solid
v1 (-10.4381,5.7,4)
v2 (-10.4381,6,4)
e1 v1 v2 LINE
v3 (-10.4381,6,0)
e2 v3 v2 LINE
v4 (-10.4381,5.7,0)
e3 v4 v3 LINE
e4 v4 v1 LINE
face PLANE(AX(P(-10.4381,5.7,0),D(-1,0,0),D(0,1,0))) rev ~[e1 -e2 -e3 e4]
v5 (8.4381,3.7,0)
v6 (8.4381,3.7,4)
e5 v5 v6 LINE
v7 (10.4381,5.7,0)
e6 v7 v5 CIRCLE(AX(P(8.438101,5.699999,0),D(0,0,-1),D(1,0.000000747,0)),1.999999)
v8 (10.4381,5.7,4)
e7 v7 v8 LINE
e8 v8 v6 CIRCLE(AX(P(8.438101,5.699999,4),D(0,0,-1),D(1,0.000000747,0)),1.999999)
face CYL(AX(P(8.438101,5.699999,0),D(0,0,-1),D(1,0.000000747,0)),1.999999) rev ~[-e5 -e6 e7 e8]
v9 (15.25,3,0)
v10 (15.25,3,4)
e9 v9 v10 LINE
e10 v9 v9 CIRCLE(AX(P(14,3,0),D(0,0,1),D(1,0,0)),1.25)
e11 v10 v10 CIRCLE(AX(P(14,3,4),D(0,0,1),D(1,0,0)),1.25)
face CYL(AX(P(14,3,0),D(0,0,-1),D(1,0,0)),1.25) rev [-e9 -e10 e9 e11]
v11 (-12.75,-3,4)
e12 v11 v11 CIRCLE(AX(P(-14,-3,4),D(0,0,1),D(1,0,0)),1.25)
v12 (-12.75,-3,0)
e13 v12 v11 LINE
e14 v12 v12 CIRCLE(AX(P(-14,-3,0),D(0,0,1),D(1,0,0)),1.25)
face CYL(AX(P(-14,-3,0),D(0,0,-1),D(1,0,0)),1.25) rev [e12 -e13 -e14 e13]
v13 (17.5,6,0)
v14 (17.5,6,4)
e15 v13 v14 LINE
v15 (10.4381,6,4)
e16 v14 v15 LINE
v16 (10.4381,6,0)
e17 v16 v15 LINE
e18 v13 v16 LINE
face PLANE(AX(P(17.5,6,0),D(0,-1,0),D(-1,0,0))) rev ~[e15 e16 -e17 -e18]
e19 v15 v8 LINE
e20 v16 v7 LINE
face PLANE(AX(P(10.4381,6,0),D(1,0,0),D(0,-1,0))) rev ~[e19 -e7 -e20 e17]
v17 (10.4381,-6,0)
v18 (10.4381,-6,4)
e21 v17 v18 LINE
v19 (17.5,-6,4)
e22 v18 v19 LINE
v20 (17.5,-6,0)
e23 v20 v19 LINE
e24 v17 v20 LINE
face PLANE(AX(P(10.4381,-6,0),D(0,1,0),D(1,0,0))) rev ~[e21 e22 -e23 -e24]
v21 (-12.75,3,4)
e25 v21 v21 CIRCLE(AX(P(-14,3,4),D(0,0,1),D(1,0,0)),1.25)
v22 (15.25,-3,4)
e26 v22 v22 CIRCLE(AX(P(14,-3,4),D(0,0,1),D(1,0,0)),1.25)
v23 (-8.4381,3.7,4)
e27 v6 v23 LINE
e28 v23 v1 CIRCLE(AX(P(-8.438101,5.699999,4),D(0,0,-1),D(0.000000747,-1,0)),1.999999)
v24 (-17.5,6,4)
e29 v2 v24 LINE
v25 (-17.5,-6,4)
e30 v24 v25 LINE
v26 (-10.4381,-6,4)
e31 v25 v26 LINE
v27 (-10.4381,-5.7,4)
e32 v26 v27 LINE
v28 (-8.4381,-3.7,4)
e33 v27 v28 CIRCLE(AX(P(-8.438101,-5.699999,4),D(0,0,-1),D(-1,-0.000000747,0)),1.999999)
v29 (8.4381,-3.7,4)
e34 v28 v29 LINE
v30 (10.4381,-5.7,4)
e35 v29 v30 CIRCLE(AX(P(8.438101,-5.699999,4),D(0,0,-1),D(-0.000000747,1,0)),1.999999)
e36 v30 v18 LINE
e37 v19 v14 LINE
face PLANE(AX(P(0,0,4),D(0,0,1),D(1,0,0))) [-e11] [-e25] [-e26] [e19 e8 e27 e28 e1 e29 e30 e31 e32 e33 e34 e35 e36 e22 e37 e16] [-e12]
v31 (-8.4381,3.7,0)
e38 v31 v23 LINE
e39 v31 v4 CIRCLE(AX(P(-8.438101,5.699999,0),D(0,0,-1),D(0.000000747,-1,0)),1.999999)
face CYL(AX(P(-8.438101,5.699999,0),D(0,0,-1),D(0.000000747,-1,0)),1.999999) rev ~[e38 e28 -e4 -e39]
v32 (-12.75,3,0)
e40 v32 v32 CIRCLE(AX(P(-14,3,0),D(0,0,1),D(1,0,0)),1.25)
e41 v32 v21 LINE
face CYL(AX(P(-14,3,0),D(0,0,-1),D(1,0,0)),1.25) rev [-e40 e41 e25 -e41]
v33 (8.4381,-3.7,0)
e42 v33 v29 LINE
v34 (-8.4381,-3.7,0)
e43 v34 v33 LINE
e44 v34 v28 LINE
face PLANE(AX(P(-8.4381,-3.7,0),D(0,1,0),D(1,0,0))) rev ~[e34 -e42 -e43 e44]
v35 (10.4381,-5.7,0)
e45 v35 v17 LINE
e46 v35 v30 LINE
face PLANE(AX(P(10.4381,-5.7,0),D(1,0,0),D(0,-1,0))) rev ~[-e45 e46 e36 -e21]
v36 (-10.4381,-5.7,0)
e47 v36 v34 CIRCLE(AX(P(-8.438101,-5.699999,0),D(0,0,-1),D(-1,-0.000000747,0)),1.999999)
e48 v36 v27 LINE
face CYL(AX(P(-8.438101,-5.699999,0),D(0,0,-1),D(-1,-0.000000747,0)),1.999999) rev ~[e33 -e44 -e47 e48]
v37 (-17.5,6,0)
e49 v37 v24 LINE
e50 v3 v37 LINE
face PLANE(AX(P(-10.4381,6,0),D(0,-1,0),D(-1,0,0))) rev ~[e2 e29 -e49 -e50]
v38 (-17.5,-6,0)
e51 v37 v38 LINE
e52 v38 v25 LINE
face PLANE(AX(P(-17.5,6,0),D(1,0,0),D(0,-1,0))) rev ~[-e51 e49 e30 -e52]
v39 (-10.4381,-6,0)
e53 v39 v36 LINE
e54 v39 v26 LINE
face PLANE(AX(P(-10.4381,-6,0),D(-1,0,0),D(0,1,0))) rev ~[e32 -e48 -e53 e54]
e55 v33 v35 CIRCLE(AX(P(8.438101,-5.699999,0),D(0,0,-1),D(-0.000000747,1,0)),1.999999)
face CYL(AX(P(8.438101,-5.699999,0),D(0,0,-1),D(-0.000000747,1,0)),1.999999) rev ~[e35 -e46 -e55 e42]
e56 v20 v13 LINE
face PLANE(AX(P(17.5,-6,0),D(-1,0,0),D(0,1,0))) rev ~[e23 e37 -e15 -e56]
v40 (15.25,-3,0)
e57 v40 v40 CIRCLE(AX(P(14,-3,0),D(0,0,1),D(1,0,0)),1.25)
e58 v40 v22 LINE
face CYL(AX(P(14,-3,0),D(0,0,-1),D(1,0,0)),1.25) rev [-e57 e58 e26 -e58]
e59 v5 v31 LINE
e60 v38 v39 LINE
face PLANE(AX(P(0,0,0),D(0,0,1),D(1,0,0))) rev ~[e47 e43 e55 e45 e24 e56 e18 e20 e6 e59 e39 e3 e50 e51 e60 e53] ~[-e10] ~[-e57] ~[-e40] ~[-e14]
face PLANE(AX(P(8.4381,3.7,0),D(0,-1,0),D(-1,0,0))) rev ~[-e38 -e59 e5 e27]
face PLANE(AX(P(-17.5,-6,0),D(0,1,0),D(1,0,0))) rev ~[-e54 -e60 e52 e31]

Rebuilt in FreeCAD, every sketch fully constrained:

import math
import FreeCAD as App
import Part
import Sketcher

V = App.Vector

doc = App.newDocument("Part")
body = doc.addObject("PartDesign::Body", "Body")

# Sketch on XY plane
sketch1 = body.newObject("Sketcher::SketchObject", "Sketch")
sketch1.AttachmentSupport = (doc.getObject("XY_Plane"), [""])
sketch1.MapMode = "FlatFace"
sketch1.addGeometry([
    Part.LineSegment(V(-17.5, -6, 0), V(-10.44, -6, 0)),  # 0
    Part.LineSegment(V(-10.44, -6, 0), V(-10.44, -5.7, 0)),  # 1
    Part.ArcOfCircle(Part.Circle(V(-8.44, -5.7, 0), V(0, 0, 1), 2), math.radians(90), math.radians(180)),  # 2
    Part.LineSegment(V(-8.44, -3.7, 0), V(8.44, -3.7, 0)),  # 3
    Part.ArcOfCircle(Part.Circle(V(8.44, -5.7, 0), V(0, 0, 1), 2), math.radians(0), math.radians(90)),  # 4
    Part.LineSegment(V(10.44, -5.7, 0), V(10.44, -6, 0)),  # 5
    Part.LineSegment(V(10.44, -6, 0), V(17.5, -6, 0)),  # 6
    Part.LineSegment(V(17.5, -6, 0), V(17.5, 6, 0)),  # 7
    Part.LineSegment(V(17.5, 6, 0), V(10.44, 6, 0)),  # 8
    Part.LineSegment(V(10.44, 6, 0), V(10.44, 5.7, 0)),  # 9
    Part.ArcOfCircle(Part.Circle(V(8.44, 5.7, 0), V(0, 0, 1), 2), math.radians(-90), math.radians(0)),  # 10
    Part.LineSegment(V(8.44, 3.7, 0), V(-8.44, 3.7, 0)),  # 11
    Part.ArcOfCircle(Part.Circle(V(-8.44, 5.7, 0), V(0, 0, 1), 2), math.radians(180), math.radians(270)),  # 12
    Part.LineSegment(V(-10.44, 5.7, 0), V(-10.44, 6, 0)),  # 13
    Part.LineSegment(V(-10.44, 6, 0), V(-17.5, 6, 0)),  # 14
    Part.LineSegment(V(-17.5, 6, 0), V(-17.5, -6, 0)),  # 15
    Part.Circle(V(-14, -3, 0), V(0, 0, 1), 1.25),  # 16
    Part.Circle(V(14, -3, 0), V(0, 0, 1), 1.25),  # 17
    Part.Circle(V(-14, 3, 0), V(0, 0, 1), 1.25),  # 18
    Part.Circle(V(14, 3, 0), V(0, 0, 1), 1.25),  # 19
], False)
sketch1.addConstraint([
    Sketcher.Constraint("Coincident", 0, 2, 1, 1),
    Sketcher.Constraint("Tangent", 1, 2, 2, 2),
    Sketcher.Constraint("Tangent", 2, 1, 3, 1),
    Sketcher.Constraint("Tangent", 3, 2, 4, 2),
    Sketcher.Constraint("Tangent", 4, 1, 5, 1),
    Sketcher.Constraint("Coincident", 5, 2, 6, 1),
    Sketcher.Constraint("Coincident", 6, 2, 7, 1),
    Sketcher.Constraint("Coincident", 7, 2, 8, 1),
    Sketcher.Constraint("Coincident", 8, 2, 9, 1),
    Sketcher.Constraint("Tangent", 9, 2, 10, 2),
    Sketcher.Constraint("Tangent", 10, 1, 11, 1),
    Sketcher.Constraint("Tangent", 11, 2, 12, 2),
    Sketcher.Constraint("Tangent", 12, 1, 13, 1),
    Sketcher.Constraint("Coincident", 13, 2, 14, 1),
    Sketcher.Constraint("Coincident", 14, 2, 15, 1),
    Sketcher.Constraint("Coincident", 15, 2, 0, 1),
    Sketcher.Constraint("Horizontal", 0),
    Sketcher.Constraint("Vertical", 1),
    Sketcher.Constraint("Horizontal", 3),
    Sketcher.Constraint("Vertical", 5),
    Sketcher.Constraint("Horizontal", 6),
    Sketcher.Constraint("Vertical", 7),
    Sketcher.Constraint("Horizontal", 8),
    Sketcher.Constraint("Vertical", 9),
    Sketcher.Constraint("Horizontal", 11),
    Sketcher.Constraint("Vertical", 13),
    Sketcher.Constraint("Horizontal", 14),
    Sketcher.Constraint("Vertical", 15),
    Sketcher.Constraint("Equal", 2, 4),
    Sketcher.Constraint("Equal", 4, 10),
    Sketcher.Constraint("Equal", 10, 12),
    Sketcher.Constraint("Equal", 16, 17),
    Sketcher.Constraint("Equal", 17, 18),
    Sketcher.Constraint("Equal", 18, 19),
    Sketcher.Constraint("Symmetric", 2, 3, 10, 3, -1, 1),
    Sketcher.Constraint("Symmetric", 17, 3, 18, 3, -1, 1),
    Sketcher.Constraint("Symmetric", 16, 3, 19, 3, -1, 1),
    Sketcher.Constraint("Symmetric", 5, 2, 13, 2, -1, 1),
    Sketcher.Constraint("Symmetric", 7, 2, 15, 2, -1, 1),
    Sketcher.Constraint("Symmetric", 16, 3, 17, 3, -2),
    Sketcher.Constraint("Symmetric", 0, 2, 5, 2, -2),
    Sketcher.Constraint("Radius", 2, 1.999999),
    Sketcher.Constraint("Diameter", 16, 2.5),
    Sketcher.Constraint("DistanceY", 7, 1, 7, 2, 12.0),
    Sketcher.Constraint("DistanceY", 1, 1, 1, 2, 0.3),
    Sketcher.Constraint("DistanceX", 16, 3, -1, 1, 14.0),
    Sketcher.Constraint("DistanceY", 16, 3, -1, 1, 3.0),
    Sketcher.Constraint("DistanceX", -1, 1, 6, 2, 17.5),
    Sketcher.Constraint("DistanceX", 0, 1, 0, 2, 7.0619),
])
pad1 = body.newObject("PartDesign::Pad", "Pad")
pad1.Profile = sketch1
pad1.Length = 4

doc.recompute()
